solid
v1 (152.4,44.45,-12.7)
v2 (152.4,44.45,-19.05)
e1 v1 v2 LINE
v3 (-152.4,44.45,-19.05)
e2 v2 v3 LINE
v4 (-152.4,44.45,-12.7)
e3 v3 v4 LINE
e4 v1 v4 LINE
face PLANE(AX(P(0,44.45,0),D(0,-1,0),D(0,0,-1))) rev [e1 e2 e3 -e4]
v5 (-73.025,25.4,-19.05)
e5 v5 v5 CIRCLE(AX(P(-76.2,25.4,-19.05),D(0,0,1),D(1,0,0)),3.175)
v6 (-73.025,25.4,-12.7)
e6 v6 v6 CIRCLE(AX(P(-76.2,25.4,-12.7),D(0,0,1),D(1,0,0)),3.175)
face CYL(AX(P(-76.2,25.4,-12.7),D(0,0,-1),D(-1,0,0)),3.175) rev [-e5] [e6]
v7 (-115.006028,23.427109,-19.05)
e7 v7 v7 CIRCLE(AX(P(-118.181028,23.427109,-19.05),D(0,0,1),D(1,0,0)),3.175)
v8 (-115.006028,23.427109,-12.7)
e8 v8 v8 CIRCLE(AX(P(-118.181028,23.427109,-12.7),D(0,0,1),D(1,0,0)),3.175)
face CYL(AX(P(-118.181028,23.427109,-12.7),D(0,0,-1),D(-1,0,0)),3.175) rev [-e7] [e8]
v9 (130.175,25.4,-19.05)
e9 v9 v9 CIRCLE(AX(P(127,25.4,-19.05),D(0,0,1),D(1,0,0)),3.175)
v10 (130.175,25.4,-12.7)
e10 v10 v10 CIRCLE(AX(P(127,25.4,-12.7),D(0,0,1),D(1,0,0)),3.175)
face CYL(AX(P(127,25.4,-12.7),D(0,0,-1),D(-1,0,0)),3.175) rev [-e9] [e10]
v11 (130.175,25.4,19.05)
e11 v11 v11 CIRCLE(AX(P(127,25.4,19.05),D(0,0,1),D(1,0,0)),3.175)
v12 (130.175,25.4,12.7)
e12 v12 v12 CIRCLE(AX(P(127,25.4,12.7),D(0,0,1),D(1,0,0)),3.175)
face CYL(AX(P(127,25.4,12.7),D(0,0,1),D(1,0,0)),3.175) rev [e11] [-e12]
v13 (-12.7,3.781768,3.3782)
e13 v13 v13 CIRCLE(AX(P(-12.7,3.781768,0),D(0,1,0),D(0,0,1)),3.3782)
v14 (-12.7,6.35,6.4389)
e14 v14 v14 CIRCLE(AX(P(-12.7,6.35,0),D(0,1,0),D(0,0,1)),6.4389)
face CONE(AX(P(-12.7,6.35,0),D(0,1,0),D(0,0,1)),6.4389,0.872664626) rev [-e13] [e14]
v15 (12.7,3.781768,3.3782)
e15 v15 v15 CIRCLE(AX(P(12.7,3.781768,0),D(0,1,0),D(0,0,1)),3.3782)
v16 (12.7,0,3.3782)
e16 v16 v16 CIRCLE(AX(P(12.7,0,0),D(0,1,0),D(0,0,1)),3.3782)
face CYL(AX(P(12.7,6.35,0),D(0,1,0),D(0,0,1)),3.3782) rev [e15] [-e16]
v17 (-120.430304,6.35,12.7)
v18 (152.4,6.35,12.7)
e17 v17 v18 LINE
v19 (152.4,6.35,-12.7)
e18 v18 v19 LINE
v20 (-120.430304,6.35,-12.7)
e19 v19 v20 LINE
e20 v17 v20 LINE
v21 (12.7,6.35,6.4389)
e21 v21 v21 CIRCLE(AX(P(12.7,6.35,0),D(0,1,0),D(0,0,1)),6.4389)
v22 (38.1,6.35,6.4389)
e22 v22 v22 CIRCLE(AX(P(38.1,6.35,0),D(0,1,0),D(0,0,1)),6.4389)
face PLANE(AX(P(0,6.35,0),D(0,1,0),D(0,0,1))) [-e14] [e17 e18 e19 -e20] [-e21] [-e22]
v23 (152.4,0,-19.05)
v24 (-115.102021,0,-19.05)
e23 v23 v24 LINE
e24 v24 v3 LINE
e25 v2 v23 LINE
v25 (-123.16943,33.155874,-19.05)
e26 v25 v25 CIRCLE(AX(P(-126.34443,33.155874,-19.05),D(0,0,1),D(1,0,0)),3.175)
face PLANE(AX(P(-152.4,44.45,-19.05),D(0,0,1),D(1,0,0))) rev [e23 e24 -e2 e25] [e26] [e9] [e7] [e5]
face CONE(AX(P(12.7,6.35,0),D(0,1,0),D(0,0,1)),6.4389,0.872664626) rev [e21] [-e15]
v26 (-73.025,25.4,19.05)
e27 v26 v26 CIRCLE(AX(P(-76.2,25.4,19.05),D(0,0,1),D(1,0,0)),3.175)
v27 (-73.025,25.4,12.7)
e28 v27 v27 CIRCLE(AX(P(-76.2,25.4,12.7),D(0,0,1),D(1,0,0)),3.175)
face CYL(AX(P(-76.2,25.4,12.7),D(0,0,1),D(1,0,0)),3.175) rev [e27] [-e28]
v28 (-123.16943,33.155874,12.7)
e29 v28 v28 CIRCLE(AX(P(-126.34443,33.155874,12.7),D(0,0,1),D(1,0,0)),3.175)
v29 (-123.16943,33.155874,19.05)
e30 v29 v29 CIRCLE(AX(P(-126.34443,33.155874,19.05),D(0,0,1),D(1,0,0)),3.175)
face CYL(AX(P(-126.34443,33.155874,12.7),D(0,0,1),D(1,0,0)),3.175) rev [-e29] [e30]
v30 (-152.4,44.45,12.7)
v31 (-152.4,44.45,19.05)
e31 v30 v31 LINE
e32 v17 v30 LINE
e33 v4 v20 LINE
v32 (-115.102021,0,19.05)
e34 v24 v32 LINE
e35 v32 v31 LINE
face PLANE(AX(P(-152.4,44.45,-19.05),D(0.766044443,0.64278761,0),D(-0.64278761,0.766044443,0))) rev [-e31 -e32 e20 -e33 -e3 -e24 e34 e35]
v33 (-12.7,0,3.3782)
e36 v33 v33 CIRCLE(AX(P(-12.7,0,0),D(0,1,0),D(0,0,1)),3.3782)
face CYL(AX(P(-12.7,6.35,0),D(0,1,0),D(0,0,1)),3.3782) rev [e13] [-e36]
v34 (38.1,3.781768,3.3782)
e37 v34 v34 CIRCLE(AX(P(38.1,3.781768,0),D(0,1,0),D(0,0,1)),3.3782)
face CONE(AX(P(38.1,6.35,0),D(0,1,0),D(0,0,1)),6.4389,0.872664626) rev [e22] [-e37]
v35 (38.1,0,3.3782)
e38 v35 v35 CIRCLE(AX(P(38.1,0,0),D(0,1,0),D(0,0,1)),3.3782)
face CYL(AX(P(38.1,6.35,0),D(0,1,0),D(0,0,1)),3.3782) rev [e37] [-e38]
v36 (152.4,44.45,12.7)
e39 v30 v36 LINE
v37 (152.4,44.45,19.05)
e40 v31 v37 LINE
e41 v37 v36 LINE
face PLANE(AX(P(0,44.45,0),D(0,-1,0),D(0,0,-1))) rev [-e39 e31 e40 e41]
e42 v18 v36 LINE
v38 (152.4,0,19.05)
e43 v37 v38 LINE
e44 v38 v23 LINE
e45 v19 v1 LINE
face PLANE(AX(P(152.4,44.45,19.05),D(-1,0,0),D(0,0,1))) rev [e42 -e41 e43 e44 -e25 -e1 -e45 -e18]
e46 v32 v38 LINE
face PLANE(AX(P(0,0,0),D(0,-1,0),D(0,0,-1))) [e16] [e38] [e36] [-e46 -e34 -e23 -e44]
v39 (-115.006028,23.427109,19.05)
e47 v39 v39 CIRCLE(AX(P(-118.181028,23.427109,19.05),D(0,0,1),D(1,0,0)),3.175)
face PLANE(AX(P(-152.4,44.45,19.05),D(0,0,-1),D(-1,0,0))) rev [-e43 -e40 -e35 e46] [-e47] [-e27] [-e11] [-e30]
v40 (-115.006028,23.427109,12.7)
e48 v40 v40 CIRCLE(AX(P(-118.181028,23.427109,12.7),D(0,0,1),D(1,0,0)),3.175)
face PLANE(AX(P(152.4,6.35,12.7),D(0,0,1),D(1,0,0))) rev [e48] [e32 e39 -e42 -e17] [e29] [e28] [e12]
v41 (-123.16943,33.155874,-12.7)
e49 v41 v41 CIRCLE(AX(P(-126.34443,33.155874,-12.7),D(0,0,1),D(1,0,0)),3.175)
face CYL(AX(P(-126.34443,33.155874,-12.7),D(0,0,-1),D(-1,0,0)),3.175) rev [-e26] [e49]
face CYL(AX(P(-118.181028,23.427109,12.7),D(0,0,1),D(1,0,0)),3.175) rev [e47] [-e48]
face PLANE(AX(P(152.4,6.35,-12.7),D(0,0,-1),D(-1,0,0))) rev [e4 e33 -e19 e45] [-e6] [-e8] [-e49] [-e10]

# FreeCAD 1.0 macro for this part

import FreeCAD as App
import Part
import Sketcher

V = App.Vector
Q = App.Units.Quantity

doc = App.newDocument("Part")
body = doc.addObject("PartDesign::Body", "Body")

sketch1 = body.newObject("Sketcher::SketchObject", "Sketch")
sketch1.AttachmentSupport = (doc.getObject("XZ_Plane"), [""])
sketch1.MapMode = "FlatFace"
sketch1.addGeometry([
    Part.LineSegment(V(-152, -19, 0), V(-152, 19, 0)),
    Part.LineSegment(V(-152, 19, 0), V(152, 19, 0)),
    Part.LineSegment(V(152, 19, 0), V(152, -19, 0)),
    Part.LineSegment(V(152, -19, 0), V(-152, -19, 0)),
], False)
sketch1.addConstraint([
    Sketcher.Constraint("Coincident", 0, 2, 1, 1),
    Sketcher.Constraint("Coincident", 1, 2, 2, 1),
    Sketcher.Constraint("Coincident", 2, 2, 3, 1),
    Sketcher.Constraint("Coincident", 3, 2, 0, 1),
    Sketcher.Constraint("Vertical", 0),
    Sketcher.Constraint("Horizontal", 1),
    Sketcher.Constraint("Vertical", 2),
    Sketcher.Constraint("Horizontal", 3),
    Sketcher.Constraint("Symmetric", 0, 2, 2, 2, -1, 1),
    Sketcher.Constraint("DistanceX", 1, 1, 1, 2, Q("12 in")),
    Sketcher.Constraint("DistanceY", 0, 1, 0, 2, Q("1.5 in")),
])
pad1 = body.newObject("PartDesign::Pad", "Pad")
pad1.Profile = sketch1
pad1.Length = Q("1.75 in")
pad1.Reversed = True

sketch2 = body.newObject("Sketcher::SketchObject", "Sketch001")
sketch2.AttachmentSupport = (doc.getObject("XZ_Plane"), [""])
sketch2.MapMode = "FlatFace"
sketch2.AttachmentOffset = App.Placement(V(0, 0, -1.75 * 25.4), App.Rotation())
sketch2.addGeometry([
    Part.LineSegment(V(-152, -13, 0), V(-152, 13, 0)),
    Part.LineSegment(V(-152, 13, 0), V(152, 13, 0)),
    Part.LineSegment(V(152, 13, 0), V(152, -13, 0)),
    Part.LineSegment(V(152, -13, 0), V(-152, -13, 0)),
], False)
sketch2.addConstraint([
    Sketcher.Constraint("Coincident", 0, 2, 1, 1),
    Sketcher.Constraint("Coincident", 1, 2, 2, 1),
    Sketcher.Constraint("Coincident", 2, 2, 3, 1),
    Sketcher.Constraint("Coincident", 3, 2, 0, 1),
    Sketcher.Constraint("Vertical", 0),
    Sketcher.Constraint("Horizontal", 1),
    Sketcher.Constraint("Vertical", 2),
    Sketcher.Constraint("Horizontal", 3),
    Sketcher.Constraint("Symmetric", 0, 2, 2, 2, -1, 1),
    Sketcher.Constraint("DistanceX", 1, 1, 1, 2, Q("12 in")),
    Sketcher.Constraint("DistanceY", 0, 1, 0, 2, Q("1 in")),
])
pocket1 = body.newObject("PartDesign::Pocket", "Pocket")
pocket1.Profile = sketch2
pocket1.Length = Q("1.5 in")
pocket1.Reversed = True

sketch3 = body.newObject("Sketcher::SketchObject", "Sketch002")
sketch3.AttachmentSupport = (doc.getObject("XY_Plane"), [""])
sketch3.MapMode = "FlatFace"
sketch3.AttachmentOffset = App.Placement(V(0, 0, 0.75 * 25.4), App.Rotation())
sketch3.addGeometry([
    Part.LineSegment(V(-115, 0, 0), V(-152, 44, 0)),
    Part.LineSegment(V(-152, 44, 0), V(-152, 0, 0)),
    Part.LineSegment(V(-152, 0, 0), V(-115, 0, 0)),
], False)
sketch3.addConstraint([
    Sketcher.Constraint("Coincident", 0, 2, 1, 1),
    Sketcher.Constraint("Coincident", 1, 2, 2, 1),
    Sketcher.Constraint("Coincident", 2, 2, 0, 1),
    Sketcher.Constraint("Vertical", 1),
    Sketcher.Constraint("Horizontal", 2),
    Sketcher.Constraint("PointOnObject", 1, 2, -1),
    Sketcher.Constraint("DistanceX", 0, 2, -1, 1, Q("6 in")),
    Sketcher.Constraint("Angle", 0, Q("130 deg")),
    Sketcher.Constraint("DistanceY", 1, 2, 1, 1, Q("1.75 in")),
])
pocket2 = body.newObject("PartDesign::Pocket", "Pocket001")
pocket2.Profile = sketch3
pocket2.Length = Q("1.5 in")

sketch4 = body.newObject("Sketcher::SketchObject", "Sketch003")
sketch4.AttachmentSupport = (doc.getObject("XY_Plane"), [""])
sketch4.MapMode = "FlatFace"
sketch4.AttachmentOffset = App.Placement(V(0, 0, 0.75 * 25.4), App.Rotation())
sketch4.addGeometry([
    Part.Circle(V(-126.3, 33.2, 0), V(0, 0, 1), 3.2),
    Part.Circle(V(-118.2, 23.4, 0), V(0, 0, 1), 3.2),
], False)
sketch4.addConstraint([
    Sketcher.Constraint("Equal", 0, 1),
    Sketcher.Constraint("Diameter", 0, Q("0.25 in")),
    Sketcher.Constraint("DistanceX", 0, 3, -1, 1, Q("126.34443 mm")),
    Sketcher.Constraint("DistanceY", -1, 1, 1, 3, Q("23.427109 mm")),
    Sketcher.Constraint("DistanceY", -1, 1, 0, 3, Q("33.155874 mm")),
    Sketcher.Constraint("DistanceX", 1, 3, -1, 1, Q("118.181028 mm")),
])
pocket3 = body.newObject("PartDesign::Pocket", "Pocket002")
pocket3.Profile = sketch4
pocket3.Length = Q("0.25 in")
doc.recompute()

mirrored = body.newObject("PartDesign::Mirrored", "Mirrored")
mirrored.Originals = [pocket3]
mirrored.MirrorPlane = (doc.getObject("XY_Plane"), [""])
body.Tip = mirrored

sketch5 = body.newObject("Sketcher::SketchObject", "Sketch004")
sketch5.AttachmentSupport = (doc.getObject("XZ_Plane"), [""])
sketch5.MapMode = "FlatFace"
sketch5.AttachmentOffset = App.Placement(V(0, 0, -0.25 * 25.4), App.Rotation())
sketch5.addGeometry([
    Part.Circle(V(-12.7, 0, 0), V(0, 0, 1), 3.4),
    Part.Circle(V(12.7, 0, 0), V(0, 0, 1), 3.4),
    Part.Circle(V(38.1, 0, 0), V(0, 0, 1), 3.4),
], False)
sketch5.addConstraint([
    Sketcher.Constraint("Equal", 0, 1),
    Sketcher.Constraint("Equal", 1, 2),
    Sketcher.Constraint("Symmetric", 0, 3, 1, 3, -1, 1),
    Sketcher.Constraint("PointOnObject", 0, 3, -1),
    Sketcher.Constraint("PointOnObject", 2, 3, -1),
    Sketcher.Constraint("Diameter", 0, Q("0.266 in")),
    Sketcher.Constraint("DistanceX", 0, 3, 1, 3, Q("1 in")),
    Sketcher.Constraint("DistanceX", 1, 3, 2, 3, Q("1 in")),
])
doc.recompute()
hole = body.newObject("PartDesign::Hole", "Hole")
hole.Profile = sketch5
hole.ThreadType = "None"
hole.Diameter = Q("0.266 in")
hole.DepthType = "ThroughAll"
hole.HoleCutType = "Countersink"
hole.HoleCutDiameter = Q("0.507 in")
hole.HoleCutCountersinkAngle = 100
hole.Reversed = True

sketch6 = body.newObject("Sketcher::SketchObject", "Sketch005")
sketch6.AttachmentSupport = (doc.getObject("XY_Plane"), [""])
sketch6.MapMode = "FlatFace"
sketch6.AttachmentOffset = App.Placement(V(0, 0, 0.75 * 25.4), App.Rotation())
sketch6.addGeometry([
    Part.Circle(V(-76.2, 25.4, 0), V(0, 0, 1), 3.2),
    Part.Circle(V(127, 25.4, 0), V(0, 0, 1), 3.2),
], False)
sketch6.addConstraint([
    Sketcher.Constraint("Equal", 0, 1),
    Sketcher.Constraint("Horizontal", 0, 3, 1, 3),
    Sketcher.Constraint("Diameter", 0, Q("0.25 in")),
    Sketcher.Constraint("DistanceX", 0, 3, -1, 1, Q("3 in")),
    Sketcher.Constraint("DistanceY", -1, 1, 0, 3, Q("1 in")),
    Sketcher.Constraint("DistanceX", -1, 1, 1, 3, Q("5 in")),
])
pocket4 = body.newObject("PartDesign::Pocket", "Pocket003")
pocket4.Profile = sketch6
pocket4.Length = Q("0.25 in")
doc.recompute()

mirrored2 = body.newObject("PartDesign::Mirrored", "Mirrored001")
mirrored2.Originals = [pocket4]
mirrored2.MirrorPlane = (doc.getObject("XY_Plane"), [""])
body.Tip = mirrored2

doc.recompute()
